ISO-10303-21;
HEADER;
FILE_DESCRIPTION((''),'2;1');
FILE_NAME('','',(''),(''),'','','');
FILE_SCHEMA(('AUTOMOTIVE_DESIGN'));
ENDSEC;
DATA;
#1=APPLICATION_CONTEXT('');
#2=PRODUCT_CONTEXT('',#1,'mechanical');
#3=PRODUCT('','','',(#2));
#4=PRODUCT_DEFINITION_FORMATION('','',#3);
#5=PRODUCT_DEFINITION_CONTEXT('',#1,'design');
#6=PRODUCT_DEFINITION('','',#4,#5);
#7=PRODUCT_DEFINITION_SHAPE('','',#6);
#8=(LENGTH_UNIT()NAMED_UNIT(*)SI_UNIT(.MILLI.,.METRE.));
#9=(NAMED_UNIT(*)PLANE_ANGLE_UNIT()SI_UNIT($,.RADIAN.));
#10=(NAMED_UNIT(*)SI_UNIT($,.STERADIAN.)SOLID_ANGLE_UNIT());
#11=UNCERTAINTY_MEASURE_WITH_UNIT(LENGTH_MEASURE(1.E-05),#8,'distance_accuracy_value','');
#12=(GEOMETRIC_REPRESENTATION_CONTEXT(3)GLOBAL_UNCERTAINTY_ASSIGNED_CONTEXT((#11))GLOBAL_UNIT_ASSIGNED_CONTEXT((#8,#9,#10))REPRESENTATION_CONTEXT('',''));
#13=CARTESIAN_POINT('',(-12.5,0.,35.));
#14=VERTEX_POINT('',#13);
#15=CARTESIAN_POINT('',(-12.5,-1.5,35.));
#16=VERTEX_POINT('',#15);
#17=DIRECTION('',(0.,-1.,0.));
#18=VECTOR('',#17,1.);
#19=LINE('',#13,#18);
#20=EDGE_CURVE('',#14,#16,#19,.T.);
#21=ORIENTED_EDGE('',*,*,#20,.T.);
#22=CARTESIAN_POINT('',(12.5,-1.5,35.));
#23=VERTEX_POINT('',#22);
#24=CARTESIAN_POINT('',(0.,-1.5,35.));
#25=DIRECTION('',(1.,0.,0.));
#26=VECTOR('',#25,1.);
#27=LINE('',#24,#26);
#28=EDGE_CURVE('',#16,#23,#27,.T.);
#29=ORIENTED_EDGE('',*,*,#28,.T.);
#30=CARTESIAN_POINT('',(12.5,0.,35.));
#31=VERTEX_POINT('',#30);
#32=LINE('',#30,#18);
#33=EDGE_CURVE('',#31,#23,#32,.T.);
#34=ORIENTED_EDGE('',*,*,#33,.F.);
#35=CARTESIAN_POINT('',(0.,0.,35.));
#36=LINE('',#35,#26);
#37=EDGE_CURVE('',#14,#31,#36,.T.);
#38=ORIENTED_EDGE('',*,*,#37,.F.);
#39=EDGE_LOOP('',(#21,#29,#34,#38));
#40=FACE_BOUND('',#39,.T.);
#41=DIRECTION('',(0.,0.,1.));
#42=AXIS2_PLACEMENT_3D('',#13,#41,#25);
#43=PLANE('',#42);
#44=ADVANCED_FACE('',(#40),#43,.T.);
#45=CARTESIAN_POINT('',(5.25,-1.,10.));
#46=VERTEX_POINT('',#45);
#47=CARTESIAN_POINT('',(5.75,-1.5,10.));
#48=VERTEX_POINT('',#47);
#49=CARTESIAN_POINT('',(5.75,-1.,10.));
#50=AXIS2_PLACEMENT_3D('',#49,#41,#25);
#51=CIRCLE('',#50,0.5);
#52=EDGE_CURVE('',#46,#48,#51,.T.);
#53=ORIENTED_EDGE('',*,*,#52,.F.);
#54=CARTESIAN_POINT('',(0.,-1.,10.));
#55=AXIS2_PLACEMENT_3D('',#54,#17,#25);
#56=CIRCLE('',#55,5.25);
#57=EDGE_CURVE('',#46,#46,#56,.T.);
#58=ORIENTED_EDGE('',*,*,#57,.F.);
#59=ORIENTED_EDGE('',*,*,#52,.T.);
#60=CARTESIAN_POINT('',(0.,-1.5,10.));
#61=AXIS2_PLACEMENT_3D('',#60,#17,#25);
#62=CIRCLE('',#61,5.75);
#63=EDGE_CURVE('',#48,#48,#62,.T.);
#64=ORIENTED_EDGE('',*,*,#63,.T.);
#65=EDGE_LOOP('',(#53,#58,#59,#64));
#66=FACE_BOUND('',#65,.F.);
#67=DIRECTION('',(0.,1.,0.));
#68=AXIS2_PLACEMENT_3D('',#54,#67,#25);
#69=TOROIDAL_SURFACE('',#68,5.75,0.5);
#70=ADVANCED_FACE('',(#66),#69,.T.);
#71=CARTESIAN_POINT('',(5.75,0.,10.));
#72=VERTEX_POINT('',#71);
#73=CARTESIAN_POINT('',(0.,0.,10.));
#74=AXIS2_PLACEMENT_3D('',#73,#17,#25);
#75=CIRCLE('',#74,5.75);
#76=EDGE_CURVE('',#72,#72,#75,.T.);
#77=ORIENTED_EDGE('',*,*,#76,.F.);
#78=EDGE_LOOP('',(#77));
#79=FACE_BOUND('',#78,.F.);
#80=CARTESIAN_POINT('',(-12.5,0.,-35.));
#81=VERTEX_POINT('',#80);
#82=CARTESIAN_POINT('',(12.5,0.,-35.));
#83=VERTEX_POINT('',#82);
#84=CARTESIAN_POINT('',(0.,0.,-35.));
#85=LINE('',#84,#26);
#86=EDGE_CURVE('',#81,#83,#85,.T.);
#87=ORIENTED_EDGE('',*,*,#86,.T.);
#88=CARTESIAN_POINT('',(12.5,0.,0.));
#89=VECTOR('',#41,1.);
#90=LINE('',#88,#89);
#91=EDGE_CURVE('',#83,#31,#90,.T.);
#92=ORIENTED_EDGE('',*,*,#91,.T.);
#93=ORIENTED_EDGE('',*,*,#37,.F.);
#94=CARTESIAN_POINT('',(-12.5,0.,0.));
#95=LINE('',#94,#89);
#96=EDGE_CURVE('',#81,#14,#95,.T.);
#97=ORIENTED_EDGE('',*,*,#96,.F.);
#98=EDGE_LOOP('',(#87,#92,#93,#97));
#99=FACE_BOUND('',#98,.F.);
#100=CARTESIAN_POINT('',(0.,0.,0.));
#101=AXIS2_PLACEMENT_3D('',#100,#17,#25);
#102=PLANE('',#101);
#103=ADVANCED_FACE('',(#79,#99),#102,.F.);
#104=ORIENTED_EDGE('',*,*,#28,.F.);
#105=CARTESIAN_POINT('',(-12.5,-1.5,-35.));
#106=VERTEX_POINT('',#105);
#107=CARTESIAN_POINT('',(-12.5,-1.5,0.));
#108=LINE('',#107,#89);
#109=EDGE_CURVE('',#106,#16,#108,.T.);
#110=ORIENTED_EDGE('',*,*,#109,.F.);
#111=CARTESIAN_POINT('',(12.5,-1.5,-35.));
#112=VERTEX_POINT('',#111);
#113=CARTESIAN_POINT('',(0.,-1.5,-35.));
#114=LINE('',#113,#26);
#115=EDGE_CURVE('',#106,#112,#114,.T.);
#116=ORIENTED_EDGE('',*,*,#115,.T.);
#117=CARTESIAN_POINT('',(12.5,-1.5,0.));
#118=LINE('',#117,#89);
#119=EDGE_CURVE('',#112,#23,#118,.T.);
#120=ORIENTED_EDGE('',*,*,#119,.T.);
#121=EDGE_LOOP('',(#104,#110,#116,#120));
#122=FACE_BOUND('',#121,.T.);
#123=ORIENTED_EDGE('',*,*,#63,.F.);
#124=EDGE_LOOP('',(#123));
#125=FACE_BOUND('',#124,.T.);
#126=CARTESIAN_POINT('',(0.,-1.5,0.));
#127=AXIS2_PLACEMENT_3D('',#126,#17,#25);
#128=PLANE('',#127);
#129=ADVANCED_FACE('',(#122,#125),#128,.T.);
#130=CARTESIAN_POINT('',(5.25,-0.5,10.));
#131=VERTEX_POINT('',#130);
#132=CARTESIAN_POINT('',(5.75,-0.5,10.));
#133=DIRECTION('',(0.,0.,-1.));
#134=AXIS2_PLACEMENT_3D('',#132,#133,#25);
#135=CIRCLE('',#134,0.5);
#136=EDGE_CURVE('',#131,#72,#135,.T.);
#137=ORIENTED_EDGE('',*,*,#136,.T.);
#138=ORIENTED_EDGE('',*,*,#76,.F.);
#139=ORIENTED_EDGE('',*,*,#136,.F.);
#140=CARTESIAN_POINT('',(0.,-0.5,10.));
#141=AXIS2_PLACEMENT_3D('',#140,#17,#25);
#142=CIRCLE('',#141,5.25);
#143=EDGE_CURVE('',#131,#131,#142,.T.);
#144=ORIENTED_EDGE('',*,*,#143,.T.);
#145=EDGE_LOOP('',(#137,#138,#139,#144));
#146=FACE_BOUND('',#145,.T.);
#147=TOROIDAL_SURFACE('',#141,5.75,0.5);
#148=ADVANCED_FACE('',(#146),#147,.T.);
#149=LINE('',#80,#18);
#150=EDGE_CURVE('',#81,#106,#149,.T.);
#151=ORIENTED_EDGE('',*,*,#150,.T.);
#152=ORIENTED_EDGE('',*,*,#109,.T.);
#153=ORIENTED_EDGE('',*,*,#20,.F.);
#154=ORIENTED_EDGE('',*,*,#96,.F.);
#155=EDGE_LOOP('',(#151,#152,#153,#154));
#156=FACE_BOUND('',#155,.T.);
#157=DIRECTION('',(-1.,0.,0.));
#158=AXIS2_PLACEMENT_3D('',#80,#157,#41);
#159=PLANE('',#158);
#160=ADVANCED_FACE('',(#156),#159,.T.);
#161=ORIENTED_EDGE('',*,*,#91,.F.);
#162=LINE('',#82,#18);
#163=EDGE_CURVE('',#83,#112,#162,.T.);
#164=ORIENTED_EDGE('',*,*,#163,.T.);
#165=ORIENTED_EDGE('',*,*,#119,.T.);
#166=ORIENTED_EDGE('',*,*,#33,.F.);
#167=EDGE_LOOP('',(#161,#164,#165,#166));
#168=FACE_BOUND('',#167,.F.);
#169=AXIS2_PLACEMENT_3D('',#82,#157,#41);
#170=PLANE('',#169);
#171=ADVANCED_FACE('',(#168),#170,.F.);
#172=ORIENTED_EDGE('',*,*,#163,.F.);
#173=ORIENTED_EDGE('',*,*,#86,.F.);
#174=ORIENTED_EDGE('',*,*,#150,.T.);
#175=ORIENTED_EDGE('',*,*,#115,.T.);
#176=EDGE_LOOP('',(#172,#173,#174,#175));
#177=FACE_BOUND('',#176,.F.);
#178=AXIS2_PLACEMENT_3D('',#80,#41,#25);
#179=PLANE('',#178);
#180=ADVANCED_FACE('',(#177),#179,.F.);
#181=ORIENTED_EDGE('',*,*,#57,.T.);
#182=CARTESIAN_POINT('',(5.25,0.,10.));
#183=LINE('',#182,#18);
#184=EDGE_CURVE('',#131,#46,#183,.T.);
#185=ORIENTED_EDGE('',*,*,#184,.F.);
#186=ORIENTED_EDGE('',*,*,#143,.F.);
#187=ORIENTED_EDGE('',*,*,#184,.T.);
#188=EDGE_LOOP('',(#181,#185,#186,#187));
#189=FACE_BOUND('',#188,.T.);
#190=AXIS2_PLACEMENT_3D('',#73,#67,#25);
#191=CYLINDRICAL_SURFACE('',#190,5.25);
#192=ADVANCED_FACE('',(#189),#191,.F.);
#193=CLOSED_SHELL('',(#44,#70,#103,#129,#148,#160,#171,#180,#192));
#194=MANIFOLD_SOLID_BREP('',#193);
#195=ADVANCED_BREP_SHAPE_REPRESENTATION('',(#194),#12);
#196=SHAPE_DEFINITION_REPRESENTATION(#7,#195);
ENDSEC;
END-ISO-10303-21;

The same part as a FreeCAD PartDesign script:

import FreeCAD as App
import Part
import Sketcher

V = App.Vector
Q = App.Units.Quantity


def edges_at(feature, points):
    """Names of the edges that pass closest to the given points."""
    edges = feature.Shape.Edges
    near = lambda p: min(range(len(edges)), key=lambda i: edges[i].distToShape(Part.Vertex(*p))[0])
    return sorted({f"Edge{near(p) + 1}" for p in points})


def add_polygon(sketch, points):
    """Adds a closed chain of lines whose ends are joined by coincident constraints."""
    first, n = sketch.GeometryCount, len(points)
    for a, b in zip(points, points[1:] + points[:1]):
        sketch.addGeometry(Part.LineSegment(App.Vector(*a, 0), App.Vector(*b, 0)), False)
    for i in range(n):
        sketch.addConstraint(Sketcher.Constraint("Coincident", first + i, 2, first + (i + 1) % n, 1))

doc = App.newDocument("Part")
body = doc.addObject("PartDesign::Body", "Body")

sketch1 = body.newObject("Sketcher::SketchObject", "Sketch")
sketch1.AttachmentSupport = (doc.getObject("XZ_Plane"), [""])
sketch1.MapMode = "FlatFace"
add_polygon(sketch1, [(-12, 35), (-12, -35), (12, -35), (12, 35)])
sketch1.addGeometry(Part.Circle(V(0, 10, 0), V(0, 0, 1), 5), False)
sketch1.addConstraint([
    Sketcher.Constraint("Vertical", 0),
    Sketcher.Constraint("Horizontal", 1),
    Sketcher.Constraint("Vertical", 2),
    Sketcher.Constraint("Horizontal", 3),
    Sketcher.Constraint("Symmetric", 0, 2, 2, 2, -1, 1),
    Sketcher.Constraint("PointOnObject", 4, 3, -2),
    Sketcher.Constraint("Diameter", 4, Q("10.5 mm")),
    Sketcher.Constraint("DistanceX", 1, 1, 1, 2, Q("25 mm")),
    Sketcher.Constraint("DistanceY", 0, 2, 0, 1, Q("70 mm")),
    Sketcher.Constraint("DistanceY", -1, 1, 4, 3, Q("10 mm")),
])
pad1 = body.newObject("PartDesign::Pad", "Pad")
pad1.Profile = sketch1
pad1.Length = 1.5
doc.recompute()

fillet = body.newObject("PartDesign::Fillet", "Fillet")
fillet.Base = (pad1, edges_at(pad1, [(-5.25, 0, 10), (-5.25, -1.5, 10)]))
fillet.Radius = 0.5

doc.recompute()
